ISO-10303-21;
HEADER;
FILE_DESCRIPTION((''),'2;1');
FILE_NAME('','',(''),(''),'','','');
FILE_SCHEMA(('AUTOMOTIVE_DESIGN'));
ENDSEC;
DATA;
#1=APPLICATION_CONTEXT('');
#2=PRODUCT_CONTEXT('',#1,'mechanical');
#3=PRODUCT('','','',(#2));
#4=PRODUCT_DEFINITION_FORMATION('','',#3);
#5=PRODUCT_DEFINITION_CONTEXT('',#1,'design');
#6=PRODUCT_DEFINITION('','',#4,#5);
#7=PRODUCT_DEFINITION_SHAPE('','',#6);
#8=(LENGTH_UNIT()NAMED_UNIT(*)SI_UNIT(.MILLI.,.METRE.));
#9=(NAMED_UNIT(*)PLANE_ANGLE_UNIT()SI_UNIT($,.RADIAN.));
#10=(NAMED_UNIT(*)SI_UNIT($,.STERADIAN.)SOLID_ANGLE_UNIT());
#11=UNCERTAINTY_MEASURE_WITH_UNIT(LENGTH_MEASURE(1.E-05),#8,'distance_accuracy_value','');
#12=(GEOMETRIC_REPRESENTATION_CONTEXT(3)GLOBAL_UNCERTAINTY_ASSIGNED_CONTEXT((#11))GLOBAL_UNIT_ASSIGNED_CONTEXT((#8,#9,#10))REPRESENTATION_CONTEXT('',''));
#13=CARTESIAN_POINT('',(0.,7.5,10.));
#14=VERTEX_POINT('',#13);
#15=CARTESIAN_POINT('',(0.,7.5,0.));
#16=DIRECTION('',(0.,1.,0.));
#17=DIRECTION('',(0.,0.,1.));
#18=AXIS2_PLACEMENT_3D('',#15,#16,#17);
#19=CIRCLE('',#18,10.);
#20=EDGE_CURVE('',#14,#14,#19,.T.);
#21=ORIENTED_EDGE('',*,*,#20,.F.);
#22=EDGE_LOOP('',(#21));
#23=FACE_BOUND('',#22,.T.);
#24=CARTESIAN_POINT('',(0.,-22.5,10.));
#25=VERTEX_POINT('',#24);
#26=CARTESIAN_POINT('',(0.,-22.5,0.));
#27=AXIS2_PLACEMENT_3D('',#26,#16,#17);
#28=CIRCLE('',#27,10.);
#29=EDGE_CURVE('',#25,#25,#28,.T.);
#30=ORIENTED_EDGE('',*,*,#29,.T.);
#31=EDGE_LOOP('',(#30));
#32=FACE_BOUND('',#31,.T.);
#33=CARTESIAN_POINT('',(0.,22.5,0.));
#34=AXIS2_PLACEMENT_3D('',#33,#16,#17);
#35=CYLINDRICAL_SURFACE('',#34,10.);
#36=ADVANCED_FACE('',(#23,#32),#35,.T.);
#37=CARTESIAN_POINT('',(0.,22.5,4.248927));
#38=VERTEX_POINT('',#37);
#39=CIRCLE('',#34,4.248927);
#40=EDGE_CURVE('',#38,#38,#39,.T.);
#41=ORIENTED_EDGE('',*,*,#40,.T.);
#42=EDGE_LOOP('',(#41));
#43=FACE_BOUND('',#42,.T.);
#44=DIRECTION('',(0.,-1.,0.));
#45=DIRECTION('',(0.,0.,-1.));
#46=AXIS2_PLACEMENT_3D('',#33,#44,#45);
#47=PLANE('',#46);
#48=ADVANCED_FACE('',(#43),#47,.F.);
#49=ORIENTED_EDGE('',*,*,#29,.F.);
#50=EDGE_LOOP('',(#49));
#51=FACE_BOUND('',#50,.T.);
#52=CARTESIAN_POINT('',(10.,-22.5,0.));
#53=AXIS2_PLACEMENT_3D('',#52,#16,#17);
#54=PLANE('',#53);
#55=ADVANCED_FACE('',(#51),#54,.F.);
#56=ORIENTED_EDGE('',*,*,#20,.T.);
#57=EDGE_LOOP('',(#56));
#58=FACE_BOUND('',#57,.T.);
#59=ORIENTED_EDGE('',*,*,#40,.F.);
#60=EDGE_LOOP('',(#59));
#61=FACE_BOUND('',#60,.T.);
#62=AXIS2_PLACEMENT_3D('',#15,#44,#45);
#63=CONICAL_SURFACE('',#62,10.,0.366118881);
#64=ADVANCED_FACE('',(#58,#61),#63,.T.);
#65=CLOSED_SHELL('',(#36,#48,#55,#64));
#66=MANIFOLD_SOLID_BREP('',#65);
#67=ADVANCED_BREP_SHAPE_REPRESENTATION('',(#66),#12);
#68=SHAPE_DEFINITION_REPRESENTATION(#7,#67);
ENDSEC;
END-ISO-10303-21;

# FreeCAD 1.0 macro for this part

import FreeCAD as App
import Part
import Sketcher
from FreeCAD import Vector
Q = App.Units.Quantity

doc = App.newDocument("Part")
params = doc.addObject("Spreadsheet::Sheet", "Params")
for row, (alias, value) in enumerate([
    ("sketch1_width", "10 mm"),
    ("sketch1_height", "45 mm"),
    ("sketch1_height2", "30 mm"),
    ("revolution_angle", "360 deg"),
], start=1):
    params.set(f"A{row}", alias)
    params.set(f"B{row}", "=" + value)
    params.setAlias(f"B{row}", alias)

body = doc.addObject("PartDesign::Body", "Body")

# Sketch on XY plane
sketch1 = doc.addObject("Sketcher::SketchObject", "Sketch")
body.addObject(sketch1)
sketch1.AttachmentSupport = (doc.XY_Plane, [""])
sketch1.MapMode = "FlatFace"
sketch1.addGeometry([
    Part.LineSegment(Vector(4.2, 22.5, 0), Vector(0, 22.5, 0)),  # 0
    Part.LineSegment(Vector(0, 22.5, 0), Vector(0, -22.5, 0)),  # 1
    Part.LineSegment(Vector(0, -22.5, 0), Vector(10, -22.5, 0)),  # 2
    Part.LineSegment(Vector(10, -22.5, 0), Vector(10, 7.5, 0)),  # 3
    Part.LineSegment(Vector(10, 7.5, 0), Vector(4.2, 22.5, 0)),  # 4
], False)
sketch1.addConstraint([
    Sketcher.Constraint("Coincident", 0, 2, 1, 1),
    Sketcher.Constraint("Coincident", 1, 2, 2, 1),
    Sketcher.Constraint("Coincident", 2, 2, 3, 1),
    Sketcher.Constraint("Coincident", 3, 2, 4, 1),
    Sketcher.Constraint("Coincident", 4, 2, 0, 1),
    Sketcher.Constraint("Horizontal", 0),
    Sketcher.Constraint("Vertical", 1),
    Sketcher.Constraint("Horizontal", 2),
    Sketcher.Constraint("Vertical", 3),
    Sketcher.Constraint("Symmetric", 0, 2, 1, 2, -1, 1),
    Sketcher.Constraint("DistanceX", 2, 1, 2, 2, Q("10 mm")),
    Sketcher.Constraint("DistanceY", 1, 2, 1, 1, Q("45 mm")),
    Sketcher.Constraint("DistanceY", 3, 1, 3, 2, Q("30 mm")),
    Sketcher.Constraint("DistanceX", 0, 2, 0, 1, Q("4.248927 mm")),
])
sketch1.setExpression("Constraints[10]", "Params.sketch1_width")
sketch1.setExpression("Constraints[11]", "Params.sketch1_height")
sketch1.setExpression("Constraints[12]", "Params.sketch1_height2")
revolution = doc.addObject("PartDesign::Revolution", "Revolution")
body.addObject(revolution)
revolution.Profile = sketch1
revolution.ReferenceAxis = (sketch1, ["V_Axis"])
revolution.setExpression("Angle", "Params.revolution_angle")

doc.recompute()
